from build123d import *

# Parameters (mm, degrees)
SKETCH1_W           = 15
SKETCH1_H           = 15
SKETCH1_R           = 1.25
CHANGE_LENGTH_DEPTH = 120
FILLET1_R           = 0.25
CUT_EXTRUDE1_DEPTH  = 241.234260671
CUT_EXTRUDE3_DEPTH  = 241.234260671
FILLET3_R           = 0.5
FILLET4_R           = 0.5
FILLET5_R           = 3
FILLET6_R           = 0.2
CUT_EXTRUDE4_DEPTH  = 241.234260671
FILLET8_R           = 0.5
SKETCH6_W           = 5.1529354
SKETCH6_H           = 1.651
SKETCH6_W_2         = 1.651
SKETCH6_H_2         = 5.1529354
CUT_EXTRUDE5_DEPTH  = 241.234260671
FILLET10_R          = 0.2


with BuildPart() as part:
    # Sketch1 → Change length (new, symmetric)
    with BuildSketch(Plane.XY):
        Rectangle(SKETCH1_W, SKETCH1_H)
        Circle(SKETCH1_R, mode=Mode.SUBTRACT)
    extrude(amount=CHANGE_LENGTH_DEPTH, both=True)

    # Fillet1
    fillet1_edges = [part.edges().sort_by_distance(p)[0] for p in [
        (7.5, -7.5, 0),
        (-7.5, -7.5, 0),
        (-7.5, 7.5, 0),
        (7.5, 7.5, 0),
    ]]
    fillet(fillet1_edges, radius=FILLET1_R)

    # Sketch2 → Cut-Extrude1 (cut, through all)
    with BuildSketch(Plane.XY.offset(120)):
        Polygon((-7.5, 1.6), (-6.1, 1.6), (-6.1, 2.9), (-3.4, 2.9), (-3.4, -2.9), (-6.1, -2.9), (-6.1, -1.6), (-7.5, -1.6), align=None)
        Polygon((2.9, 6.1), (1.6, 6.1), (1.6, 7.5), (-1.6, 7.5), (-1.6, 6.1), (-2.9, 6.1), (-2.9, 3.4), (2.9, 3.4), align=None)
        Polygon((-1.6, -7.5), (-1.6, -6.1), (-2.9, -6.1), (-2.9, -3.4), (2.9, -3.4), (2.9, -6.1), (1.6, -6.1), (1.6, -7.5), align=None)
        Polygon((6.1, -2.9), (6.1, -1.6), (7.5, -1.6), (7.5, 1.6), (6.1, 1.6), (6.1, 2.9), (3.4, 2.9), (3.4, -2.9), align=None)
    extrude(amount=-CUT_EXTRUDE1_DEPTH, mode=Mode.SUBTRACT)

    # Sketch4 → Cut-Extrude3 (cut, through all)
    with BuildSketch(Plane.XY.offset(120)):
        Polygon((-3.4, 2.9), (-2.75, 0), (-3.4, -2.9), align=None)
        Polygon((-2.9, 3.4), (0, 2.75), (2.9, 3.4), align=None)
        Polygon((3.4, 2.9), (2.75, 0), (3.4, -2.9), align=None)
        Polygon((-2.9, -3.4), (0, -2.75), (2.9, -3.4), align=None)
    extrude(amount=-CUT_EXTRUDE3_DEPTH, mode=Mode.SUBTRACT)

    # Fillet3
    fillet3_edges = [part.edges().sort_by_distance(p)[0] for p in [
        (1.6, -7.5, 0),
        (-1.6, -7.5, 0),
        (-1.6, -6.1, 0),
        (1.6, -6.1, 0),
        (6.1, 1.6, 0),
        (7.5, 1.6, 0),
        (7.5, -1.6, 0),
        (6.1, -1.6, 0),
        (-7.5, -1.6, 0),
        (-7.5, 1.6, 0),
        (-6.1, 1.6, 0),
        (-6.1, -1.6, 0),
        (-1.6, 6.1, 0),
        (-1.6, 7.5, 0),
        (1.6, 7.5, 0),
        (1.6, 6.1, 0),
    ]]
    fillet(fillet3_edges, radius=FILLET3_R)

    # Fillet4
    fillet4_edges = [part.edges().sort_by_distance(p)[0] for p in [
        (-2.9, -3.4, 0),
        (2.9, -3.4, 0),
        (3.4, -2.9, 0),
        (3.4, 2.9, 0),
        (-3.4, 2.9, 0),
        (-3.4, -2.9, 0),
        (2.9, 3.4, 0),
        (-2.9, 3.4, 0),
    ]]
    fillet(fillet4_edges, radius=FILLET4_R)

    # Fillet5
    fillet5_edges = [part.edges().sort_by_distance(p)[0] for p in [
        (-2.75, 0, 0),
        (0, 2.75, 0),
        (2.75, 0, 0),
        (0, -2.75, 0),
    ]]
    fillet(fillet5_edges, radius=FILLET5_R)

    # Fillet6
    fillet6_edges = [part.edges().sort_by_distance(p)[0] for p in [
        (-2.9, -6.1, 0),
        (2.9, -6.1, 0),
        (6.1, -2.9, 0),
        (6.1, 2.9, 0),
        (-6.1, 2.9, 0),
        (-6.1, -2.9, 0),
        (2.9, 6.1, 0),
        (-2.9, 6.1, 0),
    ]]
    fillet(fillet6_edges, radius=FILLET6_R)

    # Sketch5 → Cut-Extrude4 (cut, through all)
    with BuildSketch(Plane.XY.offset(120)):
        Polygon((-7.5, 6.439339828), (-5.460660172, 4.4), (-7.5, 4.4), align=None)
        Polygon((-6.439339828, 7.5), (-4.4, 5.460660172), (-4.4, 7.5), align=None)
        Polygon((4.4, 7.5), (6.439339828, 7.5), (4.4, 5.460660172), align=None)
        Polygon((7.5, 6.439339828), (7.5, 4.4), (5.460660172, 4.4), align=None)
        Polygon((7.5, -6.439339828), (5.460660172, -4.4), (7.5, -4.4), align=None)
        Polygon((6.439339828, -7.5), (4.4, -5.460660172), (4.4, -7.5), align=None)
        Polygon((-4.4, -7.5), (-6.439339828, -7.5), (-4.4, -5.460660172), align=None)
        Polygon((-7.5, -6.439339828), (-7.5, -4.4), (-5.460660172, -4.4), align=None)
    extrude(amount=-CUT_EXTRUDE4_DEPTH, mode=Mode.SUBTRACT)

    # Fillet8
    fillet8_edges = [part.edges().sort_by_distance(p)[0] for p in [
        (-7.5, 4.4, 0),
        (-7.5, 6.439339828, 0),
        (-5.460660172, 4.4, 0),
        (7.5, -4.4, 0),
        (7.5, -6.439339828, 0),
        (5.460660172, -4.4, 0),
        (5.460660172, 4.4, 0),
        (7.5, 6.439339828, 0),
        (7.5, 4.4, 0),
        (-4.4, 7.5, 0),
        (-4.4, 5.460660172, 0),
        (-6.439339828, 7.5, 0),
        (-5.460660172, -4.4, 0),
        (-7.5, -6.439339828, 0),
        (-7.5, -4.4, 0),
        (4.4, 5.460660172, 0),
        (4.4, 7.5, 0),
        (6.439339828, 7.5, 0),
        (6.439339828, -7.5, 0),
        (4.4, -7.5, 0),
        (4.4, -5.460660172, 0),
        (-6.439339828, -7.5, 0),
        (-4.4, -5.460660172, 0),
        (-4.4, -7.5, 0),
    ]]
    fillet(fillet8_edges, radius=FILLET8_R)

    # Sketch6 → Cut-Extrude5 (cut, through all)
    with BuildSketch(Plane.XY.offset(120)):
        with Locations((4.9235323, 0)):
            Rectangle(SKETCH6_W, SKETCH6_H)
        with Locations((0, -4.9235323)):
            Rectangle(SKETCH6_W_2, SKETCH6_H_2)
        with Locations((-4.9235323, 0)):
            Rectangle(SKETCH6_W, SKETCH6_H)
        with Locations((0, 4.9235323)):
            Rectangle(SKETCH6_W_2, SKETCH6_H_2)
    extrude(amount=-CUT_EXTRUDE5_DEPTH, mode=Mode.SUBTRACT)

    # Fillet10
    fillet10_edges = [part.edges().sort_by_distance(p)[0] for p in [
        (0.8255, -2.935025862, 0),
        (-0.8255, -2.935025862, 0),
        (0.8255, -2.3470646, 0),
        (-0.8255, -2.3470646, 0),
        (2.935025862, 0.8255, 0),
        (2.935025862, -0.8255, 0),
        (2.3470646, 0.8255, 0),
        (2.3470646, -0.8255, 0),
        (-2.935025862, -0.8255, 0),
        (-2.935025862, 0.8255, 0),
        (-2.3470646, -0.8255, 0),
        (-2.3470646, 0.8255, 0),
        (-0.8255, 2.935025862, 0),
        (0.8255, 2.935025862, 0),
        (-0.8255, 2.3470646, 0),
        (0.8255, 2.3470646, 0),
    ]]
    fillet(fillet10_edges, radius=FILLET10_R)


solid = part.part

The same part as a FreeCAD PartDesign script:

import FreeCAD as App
import Part
import Sketcher
Q = App.Units.Quantity


def edges_at(feature, points):
    """Names of the edges that pass closest to the given points."""
    edges = feature.Shape.Edges
    near = lambda p: min(range(len(edges)), key=lambda i: edges[i].distToShape(Part.Vertex(*p))[0])
    return sorted({f"Edge{near(p) + 1}" for p in points})


def add_polygon(sketch, points):
    """Adds a closed chain of lines whose ends are joined by coincident constraints."""
    first, n = sketch.GeometryCount, len(points)
    for a, b in zip(points, points[1:] + points[:1]):
        sketch.addGeometry(Part.LineSegment(App.Vector(*a, 0), App.Vector(*b, 0)), False)
    for i in range(n):
        sketch.addConstraint(Sketcher.Constraint("Coincident", first + i, 2, first + (i + 1) % n, 1))

doc = App.newDocument("Part")
body = doc.addObject("PartDesign::Body", "Body")

sketch1 = doc.addObject("Sketcher::SketchObject", "Sketch")
body.addObject(sketch1)
sketch1.AttachmentSupport = (doc.XY_Plane, [""])
sketch1.MapMode = "FlatFace"
add_polygon(sketch1, [(-7.5, 7.5), (-7.5, -7.5), (7.5, -7.5), (7.5, 7.5)])
sketch1.addGeometry(Part.Circle(App.Vector(0, 0, 0), App.Vector(0, 0, 1), 1.2), False)
sketch1.addConstraint([
    Sketcher.Constraint("Vertical", 0),
    Sketcher.Constraint("Horizontal", 1),
    Sketcher.Constraint("Vertical", 2),
    Sketcher.Constraint("Horizontal", 3),
    Sketcher.Constraint("Coincident", 4, 3, -1, 1),
    Sketcher.Constraint("Symmetric", 0, 2, 2, 2, -1, 1),
    Sketcher.Constraint("Equal", 3, 0),
    Sketcher.Constraint("Diameter", 4, Q("2.5 mm")),
    Sketcher.Constraint("DistanceX", 1, 1, 1, 2, Q("15 mm")),
])
pad1 = doc.addObject("PartDesign::Pad", "Pad")
body.addObject(pad1)
pad1.Profile = sketch1
pad1.Length = 240
pad1.Midplane = True
doc.recompute()

fillet = doc.addObject("PartDesign::Fillet", "Fillet")
body.addObject(fillet)
fillet.Base = (pad1, edges_at(pad1, [
    (7.5, -7.5, 0),
    (-7.5, -7.5, 0),
    (-7.5, 7.5, 0),
    (7.5, 7.5, 0),
]))
fillet.Radius = 0.25

sketch2 = doc.addObject("Sketcher::SketchObject", "Sketch001")
body.addObject(sketch2)
sketch2.AttachmentSupport = (doc.XY_Plane, [""])
sketch2.MapMode = "FlatFace"
sketch2.AttachmentOffset = App.Placement(App.Vector(0, 0, 120), App.Rotation())
add_polygon(sketch2, [(-6.1, 1.6), (-7.5, 1.6), (-7.5, -1.6), (-6.1, -1.6), (-6.1, -2.9), (-3.4, -2.9), (-3.4, 2.9), (-6.1, 2.9)])
add_polygon(sketch2, [(2.9, 6.1), (1.6, 6.1), (1.6, 7.5), (-1.6, 7.5), (-1.6, 6.1), (-2.9, 6.1), (-2.9, 3.4), (2.9, 3.4)])
add_polygon(sketch2, [(-1.6, -6.1), (-1.6, -7.5), (1.6, -7.5), (1.6, -6.1), (2.9, -6.1), (2.9, -3.4), (-2.9, -3.4), (-2.9, -6.1)])
add_polygon(sketch2, [(6.1, -2.9), (6.1, -1.6), (7.5, -1.6), (7.5, 1.6), (6.1, 1.6), (6.1, 2.9), (3.4, 2.9), (3.4, -2.9)])
sketch2.addConstraint([
    Sketcher.Constraint("Horizontal", 0),
    Sketcher.Constraint("Vertical", 1),
    Sketcher.Constraint("Horizontal", 2),
    Sketcher.Constraint("Vertical", 3),
    Sketcher.Constraint("Horizontal", 4),
    Sketcher.Constraint("Vertical", 5),
    Sketcher.Constraint("Horizontal", 6),
    Sketcher.Constraint("Vertical", 7),
    Sketcher.Constraint("Horizontal", 8),
    Sketcher.Constraint("Vertical", 9),
    Sketcher.Constraint("Horizontal", 10),
    Sketcher.Constraint("Vertical", 11),
    Sketcher.Constraint("Horizontal", 12),
    Sketcher.Constraint("Vertical", 13),
    Sketcher.Constraint("Horizontal", 14),
    Sketcher.Constraint("Vertical", 15),
    Sketcher.Constraint("Vertical", 16),
    Sketcher.Constraint("Horizontal", 17),
    Sketcher.Constraint("Vertical", 18),
    Sketcher.Constraint("Horizontal", 19),
    Sketcher.Constraint("Vertical", 20),
    Sketcher.Constraint("Horizontal", 21),
    Sketcher.Constraint("Vertical", 22),
    Sketcher.Constraint("Horizontal", 23),
    Sketcher.Constraint("Vertical", 24),
    Sketcher.Constraint("Horizontal", 25),
    Sketcher.Constraint("Vertical", 26),
    Sketcher.Constraint("Horizontal", 27),
    Sketcher.Constraint("Vertical", 28),
    Sketcher.Constraint("Horizontal", 29),
    Sketcher.Constraint("Vertical", 30),
    Sketcher.Constraint("Horizontal", 31),
    Sketcher.Constraint("Symmetric", 9, 2, 16, 2, -1, 1),
    Sketcher.Constraint("Symmetric", 11, 2, 18, 2, -1, 1),
    Sketcher.Constraint("Symmetric", 13, 2, 20, 2, -1, 1),
    Sketcher.Constraint("Symmetric", 15, 2, 22, 2, -1, 1),
    Sketcher.Constraint("Symmetric", 7, 2, 24, 2, -1, 1),
    Sketcher.Constraint("Symmetric", 1, 2, 26, 2, -1, 1),
    Sketcher.Constraint("Symmetric", 3, 2, 28, 2, -1, 1),
    Sketcher.Constraint("Symmetric", 5, 2, 30, 2, -1, 1),
    Sketcher.Constraint("Symmetric", 8, 2, 11, 2, -2),
    Sketcher.Constraint("Symmetric", 2, 2, 24, 2, -2),
    Sketcher.Constraint("Horizontal", 6, 2, 28, 2),
    Sketcher.Constraint("Vertical", 15, 2, 19, 2),
    Sketcher.Constraint("Equal", 17, 1),
    Sketcher.Constraint("Equal", 23, 3),
    Sketcher.Constraint("Equal", 27, 9),
    Sketcher.Constraint("Equal", 31, 13),
    Sketcher.Constraint("DistanceX", 0, 2, 0, 1, Q("1.4 mm")),
    Sketcher.Constraint("DistanceX", 4, 1, 4, 2, Q("2.7 mm")),
    Sketcher.Constraint("DistanceX", 8, 2, 8, 1, Q("1.3 mm")),
    Sketcher.Constraint("DistanceX", 10, 2, 10, 1, Q("3.2 mm")),
    Sketcher.Constraint("DistanceX", 5, 2, 8, 2, Q("5 mm")),
    Sketcher.Constraint("DistanceY", 4, 2, 8, 2, Q("9 mm")),
])
pocket1 = doc.addObject("PartDesign::Pocket", "Pocket")
body.addObject(pocket1)
pocket1.Profile = sketch2
pocket1.Type = "ThroughAll"

sketch3 = doc.addObject("Sketcher::SketchObject", "Sketch002")
body.addObject(sketch3)
sketch3.AttachmentSupport = (doc.XY_Plane, [""])
sketch3.MapMode = "FlatFace"
sketch3.AttachmentOffset = App.Placement(App.Vector(0, 0, 120), App.Rotation())
add_polygon(sketch3, [(-2.8, 0), (-3.4, 2.9), (-3.4, -2.9)])
add_polygon(sketch3, [(-2.9, 3.4), (0, 2.8), (2.9, 3.4)])
add_polygon(sketch3, [(3.4, 2.9), (2.8, 0), (3.4, -2.9)])
add_polygon(sketch3, [(0, -2.8), (-2.9, -3.4), (2.9, -3.4)])
sketch3.addConstraint([
    Sketcher.Constraint("Vertical", 1),
    Sketcher.Constraint("Horizontal", 5),
    Sketcher.Constraint("Vertical", 8),
    Sketcher.Constraint("Horizontal", 10),
    Sketcher.Constraint("Symmetric", 2, 2, 6, 2, -1, 1),
    Sketcher.Constraint("Symmetric", 0, 2, 7, 2, -1, 1),
    Sketcher.Constraint("Symmetric", 4, 2, 9, 2, -1, 1),
    Sketcher.Constraint("Symmetric", 3, 2, 11, 2, -1, 1),
    Sketcher.Constraint("PointOnObject", 2, 2, -1),
    Sketcher.Constraint("PointOnObject", 3, 2, -2),
    Sketcher.Constraint("Perpendicular", 2, 3),
    Sketcher.Constraint("Perpendicular", 0, 4),
    Sketcher.Constraint("Perpendicular", 3, 6),
    Sketcher.Constraint("Perpendicular", 6, 11),
    Sketcher.Constraint("Horizontal", 1, 2, 7, 2),
    Sketcher.Constraint("Equal", 10, 1),
    Sketcher.Constraint("DistanceX", 5, 2, 5, 1, Q("5.8 mm")),
    Sketcher.Constraint("DistanceX", 0, 2, -1, 1, Q("3.4 mm")),
    Sketcher.Constraint("DistanceY", -1, 1, 4, 2, Q("3.4 mm")),
    Sketcher.Constraint("DistanceX", 2, 2, 6, 2, Q("5.5 mm")),
])
pocket2 = doc.addObject("PartDesign::Pocket", "Pocket001")
body.addObject(pocket2)
pocket2.Profile = sketch3
pocket2.Type = "ThroughAll"
doc.recompute()

fillet2 = doc.addObject("PartDesign::Fillet", "Fillet001")
body.addObject(fillet2)
fillet2.Base = (pocket2, edges_at(pocket2, [
    (1.6, -7.5, 0),
    (-1.6, -7.5, 0),
    (-1.6, -6.1, 0),
    (1.6, -6.1, 0),
    (6.1, 1.6, 0),
    (7.5, 1.6, 0),
    (7.5, -1.6, 0),
    (6.1, -1.6, 0),
    (-7.5, -1.6, 0),
    (-7.5, 1.6, 0),
    (-6.1, 1.6, 0),
    (-6.1, -1.6, 0),
    (-1.6, 6.1, 0),
    (-1.6, 7.5, 0),
    (1.6, 7.5, 0),
    (1.6, 6.1, 0),
]))
fillet2.Radius = 0.5
doc.recompute()

fillet3 = doc.addObject("PartDesign::Fillet", "Fillet002")
body.addObject(fillet3)
fillet3.Base = (fillet2, edges_at(fillet2, [
    (-2.9, -3.4, 0),
    (2.9, -3.4, 0),
    (3.4, -2.9, 0),
    (3.4, 2.9, 0),
    (-3.4, 2.9, 0),
    (-3.4, -2.9, 0),
    (2.9, 3.4, 0),
    (-2.9, 3.4, 0),
]))
fillet3.Radius = 0.5
doc.recompute()

fillet4 = doc.addObject("PartDesign::Fillet", "Fillet003")
body.addObject(fillet4)
fillet4.Base = (fillet3, edges_at(fillet3, [
    (-2.75, 0, 0),
    (0, 2.75, 0),
    (2.75, 0, 0),
    (0, -2.75, 0),
]))
fillet4.Radius = 3
doc.recompute()

fillet5 = doc.addObject("PartDesign::Fillet", "Fillet004")
body.addObject(fillet5)
fillet5.Base = (fillet4, edges_at(fillet4, [
    (-2.9, -6.1, 0),
    (2.9, -6.1, 0),
    (6.1, -2.9, 0),
    (6.1, 2.9, 0),
    (-6.1, 2.9, 0),
    (-6.1, -2.9, 0),
    (2.9, 6.1, 0),
    (-2.9, 6.1, 0),
]))
fillet5.Radius = 0.2

sketch4 = doc.addObject("Sketcher::SketchObject", "Sketch003")
body.addObject(sketch4)
sketch4.AttachmentSupport = (doc.XY_Plane, [""])
sketch4.MapMode = "FlatFace"
sketch4.AttachmentOffset = App.Placement(App.Vector(0, 0, 120), App.Rotation())
add_polygon(sketch4, [(-5.5, 4.4), (-7.5, 6.4), (-7.5, 4.4)])
add_polygon(sketch4, [(-6.4, 7.5), (-4.4, 5.5), (-4.4, 7.5)])
add_polygon(sketch4, [(6.4, 7.5), (4.4, 7.5), (4.4, 5.5)])
add_polygon(sketch4, [(7.5, 4.4), (7.5, 6.4), (5.5, 4.4)])
add_polygon(sketch4, [(5.5, -4.4), (7.5, -6.4), (7.5, -4.4)])
add_polygon(sketch4, [(6.4, -7.5), (4.4, -5.5), (4.4, -7.5)])
add_polygon(sketch4, [(-6.4, -7.5), (-4.4, -7.5), (-4.4, -5.5)])
add_polygon(sketch4, [(-7.5, -4.4), (-7.5, -6.4), (-5.5, -4.4)])
sketch4.addConstraint([
    Sketcher.Constraint("Vertical", 1),
    Sketcher.Constraint("Horizontal", 2),
    Sketcher.Constraint("Vertical", 4),
    Sketcher.Constraint("Horizontal", 5),
    Sketcher.Constraint("Horizontal", 6),
    Sketcher.Constraint("Vertical", 7),
    Sketcher.Constraint("Vertical", 9),
    Sketcher.Constraint("Horizontal", 11),
    Sketcher.Constraint("Vertical", 13),
    Sketcher.Constraint("Horizontal", 14),
    Sketcher.Constraint("Vertical", 16),
    Sketcher.Constraint("Horizontal", 17),
    Sketcher.Constraint("Horizontal", 18),
    Sketcher.Constraint("Vertical", 19),
    Sketcher.Constraint("Vertical", 21),
    Sketcher.Constraint("Horizontal", 23),
    Sketcher.Constraint("Symmetric", 0, 2, 12, 2, -1, 1),
    Sketcher.Constraint("Symmetric", 2, 2, 14, 2, -1, 1),
    Sketcher.Constraint("Symmetric", 3, 2, 15, 2, -1, 1),
    Sketcher.Constraint("Symmetric", 5, 2, 17, 2, -1, 1),
    Sketcher.Constraint("Symmetric", 6, 2, 18, 2, -1, 1),
    Sketcher.Constraint("Symmetric", 9, 2, 21, 2, -1, 1),
    Sketcher.Constraint("Symmetric", 10, 2, 22, 2, -1, 1),
    Sketcher.Constraint("Symmetric", 4, 2, 6, 2, -2),
    Sketcher.Constraint("Symmetric", 0, 2, 9, 2, -2),
    Sketcher.Constraint("Symmetric", 2, 2, 10, 2, -2),
    Sketcher.Constraint("Parallel", 0, 3),
    Sketcher.Constraint("Perpendicular", 3, 8),
    Sketcher.Constraint("Parallel", 8, 10),
    Sketcher.Constraint("Perpendicular", 15, 20),
    Sketcher.Constraint("Horizontal", 3, 2, 7, 2),
    Sketcher.Constraint("Horizontal", 15, 2, 19, 2),
    Sketcher.Constraint("Equal", 2, 5),
    Sketcher.Constraint("DistanceX", 0, 2, -1, 1, Q("7.5 mm")),
    Sketcher.Constraint("DistanceY", -1, 1, 1, 2, Q("4.4 mm")),
    Sketcher.Constraint("DistanceX", 3, 2, -1, 1, Q("4.4 mm")),
    Sketcher.Constraint("DistanceY", -1, 1, 4, 2, Q("7.5 mm")),
    Sketcher.Constraint("DistanceX", 2, 1, 2, 2, Q("2.03934 mm")),
])
pocket3 = doc.addObject("PartDesign::Pocket", "Pocket002")
body.addObject(pocket3)
pocket3.Profile = sketch4
pocket3.Type = "ThroughAll"
doc.recompute()

fillet6 = doc.addObject("PartDesign::Fillet", "Fillet005")
body.addObject(fillet6)
fillet6.Base = (pocket3, edges_at(pocket3, [
    (-7.5, 4.4, 0),
    (-7.5, 6.439, 0),
    (-5.461, 4.4, 0),
    (7.5, -4.4, 0),
    (7.5, -6.439, 0),
    (5.461, -4.4, 0),
    (5.461, 4.4, 0),
    (7.5, 6.439, 0),
    (7.5, 4.4, 0),
    (-4.4, 7.5, 0),
    (-4.4, 5.461, 0),
    (-6.439, 7.5, 0),
    (-5.461, -4.4, 0),
    (-7.5, -6.439, 0),
    (-7.5, -4.4, 0),
    (4.4, 5.461, 0),
    (4.4, 7.5, 0),
    (6.439, 7.5, 0),
    (6.439, -7.5, 0),
    (4.4, -7.5, 0),
    (4.4, -5.461, 0),
    (-6.439, -7.5, 0),
    (-4.4, -5.461, 0),
    (-4.4, -7.5, 0),
]))
fillet6.Radius = 0.5

sketch5 = doc.addObject("Sketcher::SketchObject", "Sketch004")
body.addObject(sketch5)
sketch5.AttachmentSupport = (doc.XY_Plane, [""])
sketch5.MapMode = "FlatFace"
sketch5.AttachmentOffset = App.Placement(App.Vector(0, 0, 120), App.Rotation())
add_polygon(sketch5, [(2.3, 0.8), (2.3, -0.8), (7.5, -0.8), (7.5, 0.8)])
add_polygon(sketch5, [(-0.8, -2.3), (-0.8, -7.5), (0.8, -7.5), (0.8, -2.3)])
add_polygon(sketch5, [(-7.5, 0.8), (-7.5, -0.8), (-2.3, -0.8), (-2.3, 0.8)])
add_polygon(sketch5, [(-0.8, 7.5), (-0.8, 2.3), (0.8, 2.3), (0.8, 7.5)])
sketch5.addConstraint([
    Sketcher.Constraint("Vertical", 0),
    Sketcher.Constraint("Horizontal", 1),
    Sketcher.Constraint("Vertical", 2),
    Sketcher.Constraint("Horizontal", 3),
    Sketcher.Constraint("Vertical", 4),
    Sketcher.Constraint("Horizontal", 5),
    Sketcher.Constraint("Vertical", 6),
    Sketcher.Constraint("Horizontal", 7),
    Sketcher.Constraint("Vertical", 8),
    Sketcher.Constraint("Horizontal", 9),
    Sketcher.Constraint("Vertical", 10),
    Sketcher.Constraint("Horizontal", 11),
    Sketcher.Constraint("Vertical", 12),
    Sketcher.Constraint("Horizontal", 13),
    Sketcher.Constraint("Vertical", 14),
    Sketcher.Constraint("Horizontal", 15),
    Sketcher.Constraint("Symmetric", 2, 2, 8, 2, -1, 1),
    Sketcher.Constraint("Symmetric", 0, 2, 10, 2, -1, 1),
    Sketcher.Constraint("Symmetric", 6, 2, 12, 2, -1, 1),
    Sketcher.Constraint("Symmetric", 4, 2, 14, 2, -1, 1),
    Sketcher.Constraint("Horizontal", 1, 2, 8, 2),
    Sketcher.Constraint("Vertical", 7, 2, 12, 2),
    Sketcher.Constraint("Equal", 15, 0),
    Sketcher.Constraint("Equal", 11, 4),
    Sketcher.Constraint("DistanceX", -1, 1, 1, 2, Q("7.5 mm")),
    Sketcher.Constraint("DistanceY", 4, 2, -1, 1, Q("7.5 mm")),
    Sketcher.Constraint("DistanceX", 5, 1, 5, 2, Q("1.651 mm")),
    Sketcher.Constraint("DistanceX", 1, 1, 1, 2, Q("5.152935 mm")),
])
pocket4 = doc.addObject("PartDesign::Pocket", "Pocket003")
body.addObject(pocket4)
pocket4.Profile = sketch5
pocket4.Type = "ThroughAll"
doc.recompute()

fillet7 = doc.addObject("PartDesign::Fillet", "Fillet006")
body.addObject(fillet7)
fillet7.Base = (pocket4, edges_at(pocket4, [
    (0.826, -2.935, 0),
    (-0.826, -2.935, 0),
    (0.826, -2.347, 0),
    (-0.826, -2.347, 0),
    (2.935, 0.826, 0),
    (2.935, -0.826, 0),
    (2.347, 0.826, 0),
    (2.347, -0.826, 0),
    (-2.935, -0.826, 0),
    (-2.935, 0.826, 0),
    (-2.347, -0.826, 0),
    (-2.347, 0.826, 0),
    (-0.826, 2.935, 0),
    (0.826, 2.935, 0),
    (-0.826, 2.347, 0),
    (0.826, 2.347, 0),
]))
fillet7.Radius = 0.2

doc.recompute()
